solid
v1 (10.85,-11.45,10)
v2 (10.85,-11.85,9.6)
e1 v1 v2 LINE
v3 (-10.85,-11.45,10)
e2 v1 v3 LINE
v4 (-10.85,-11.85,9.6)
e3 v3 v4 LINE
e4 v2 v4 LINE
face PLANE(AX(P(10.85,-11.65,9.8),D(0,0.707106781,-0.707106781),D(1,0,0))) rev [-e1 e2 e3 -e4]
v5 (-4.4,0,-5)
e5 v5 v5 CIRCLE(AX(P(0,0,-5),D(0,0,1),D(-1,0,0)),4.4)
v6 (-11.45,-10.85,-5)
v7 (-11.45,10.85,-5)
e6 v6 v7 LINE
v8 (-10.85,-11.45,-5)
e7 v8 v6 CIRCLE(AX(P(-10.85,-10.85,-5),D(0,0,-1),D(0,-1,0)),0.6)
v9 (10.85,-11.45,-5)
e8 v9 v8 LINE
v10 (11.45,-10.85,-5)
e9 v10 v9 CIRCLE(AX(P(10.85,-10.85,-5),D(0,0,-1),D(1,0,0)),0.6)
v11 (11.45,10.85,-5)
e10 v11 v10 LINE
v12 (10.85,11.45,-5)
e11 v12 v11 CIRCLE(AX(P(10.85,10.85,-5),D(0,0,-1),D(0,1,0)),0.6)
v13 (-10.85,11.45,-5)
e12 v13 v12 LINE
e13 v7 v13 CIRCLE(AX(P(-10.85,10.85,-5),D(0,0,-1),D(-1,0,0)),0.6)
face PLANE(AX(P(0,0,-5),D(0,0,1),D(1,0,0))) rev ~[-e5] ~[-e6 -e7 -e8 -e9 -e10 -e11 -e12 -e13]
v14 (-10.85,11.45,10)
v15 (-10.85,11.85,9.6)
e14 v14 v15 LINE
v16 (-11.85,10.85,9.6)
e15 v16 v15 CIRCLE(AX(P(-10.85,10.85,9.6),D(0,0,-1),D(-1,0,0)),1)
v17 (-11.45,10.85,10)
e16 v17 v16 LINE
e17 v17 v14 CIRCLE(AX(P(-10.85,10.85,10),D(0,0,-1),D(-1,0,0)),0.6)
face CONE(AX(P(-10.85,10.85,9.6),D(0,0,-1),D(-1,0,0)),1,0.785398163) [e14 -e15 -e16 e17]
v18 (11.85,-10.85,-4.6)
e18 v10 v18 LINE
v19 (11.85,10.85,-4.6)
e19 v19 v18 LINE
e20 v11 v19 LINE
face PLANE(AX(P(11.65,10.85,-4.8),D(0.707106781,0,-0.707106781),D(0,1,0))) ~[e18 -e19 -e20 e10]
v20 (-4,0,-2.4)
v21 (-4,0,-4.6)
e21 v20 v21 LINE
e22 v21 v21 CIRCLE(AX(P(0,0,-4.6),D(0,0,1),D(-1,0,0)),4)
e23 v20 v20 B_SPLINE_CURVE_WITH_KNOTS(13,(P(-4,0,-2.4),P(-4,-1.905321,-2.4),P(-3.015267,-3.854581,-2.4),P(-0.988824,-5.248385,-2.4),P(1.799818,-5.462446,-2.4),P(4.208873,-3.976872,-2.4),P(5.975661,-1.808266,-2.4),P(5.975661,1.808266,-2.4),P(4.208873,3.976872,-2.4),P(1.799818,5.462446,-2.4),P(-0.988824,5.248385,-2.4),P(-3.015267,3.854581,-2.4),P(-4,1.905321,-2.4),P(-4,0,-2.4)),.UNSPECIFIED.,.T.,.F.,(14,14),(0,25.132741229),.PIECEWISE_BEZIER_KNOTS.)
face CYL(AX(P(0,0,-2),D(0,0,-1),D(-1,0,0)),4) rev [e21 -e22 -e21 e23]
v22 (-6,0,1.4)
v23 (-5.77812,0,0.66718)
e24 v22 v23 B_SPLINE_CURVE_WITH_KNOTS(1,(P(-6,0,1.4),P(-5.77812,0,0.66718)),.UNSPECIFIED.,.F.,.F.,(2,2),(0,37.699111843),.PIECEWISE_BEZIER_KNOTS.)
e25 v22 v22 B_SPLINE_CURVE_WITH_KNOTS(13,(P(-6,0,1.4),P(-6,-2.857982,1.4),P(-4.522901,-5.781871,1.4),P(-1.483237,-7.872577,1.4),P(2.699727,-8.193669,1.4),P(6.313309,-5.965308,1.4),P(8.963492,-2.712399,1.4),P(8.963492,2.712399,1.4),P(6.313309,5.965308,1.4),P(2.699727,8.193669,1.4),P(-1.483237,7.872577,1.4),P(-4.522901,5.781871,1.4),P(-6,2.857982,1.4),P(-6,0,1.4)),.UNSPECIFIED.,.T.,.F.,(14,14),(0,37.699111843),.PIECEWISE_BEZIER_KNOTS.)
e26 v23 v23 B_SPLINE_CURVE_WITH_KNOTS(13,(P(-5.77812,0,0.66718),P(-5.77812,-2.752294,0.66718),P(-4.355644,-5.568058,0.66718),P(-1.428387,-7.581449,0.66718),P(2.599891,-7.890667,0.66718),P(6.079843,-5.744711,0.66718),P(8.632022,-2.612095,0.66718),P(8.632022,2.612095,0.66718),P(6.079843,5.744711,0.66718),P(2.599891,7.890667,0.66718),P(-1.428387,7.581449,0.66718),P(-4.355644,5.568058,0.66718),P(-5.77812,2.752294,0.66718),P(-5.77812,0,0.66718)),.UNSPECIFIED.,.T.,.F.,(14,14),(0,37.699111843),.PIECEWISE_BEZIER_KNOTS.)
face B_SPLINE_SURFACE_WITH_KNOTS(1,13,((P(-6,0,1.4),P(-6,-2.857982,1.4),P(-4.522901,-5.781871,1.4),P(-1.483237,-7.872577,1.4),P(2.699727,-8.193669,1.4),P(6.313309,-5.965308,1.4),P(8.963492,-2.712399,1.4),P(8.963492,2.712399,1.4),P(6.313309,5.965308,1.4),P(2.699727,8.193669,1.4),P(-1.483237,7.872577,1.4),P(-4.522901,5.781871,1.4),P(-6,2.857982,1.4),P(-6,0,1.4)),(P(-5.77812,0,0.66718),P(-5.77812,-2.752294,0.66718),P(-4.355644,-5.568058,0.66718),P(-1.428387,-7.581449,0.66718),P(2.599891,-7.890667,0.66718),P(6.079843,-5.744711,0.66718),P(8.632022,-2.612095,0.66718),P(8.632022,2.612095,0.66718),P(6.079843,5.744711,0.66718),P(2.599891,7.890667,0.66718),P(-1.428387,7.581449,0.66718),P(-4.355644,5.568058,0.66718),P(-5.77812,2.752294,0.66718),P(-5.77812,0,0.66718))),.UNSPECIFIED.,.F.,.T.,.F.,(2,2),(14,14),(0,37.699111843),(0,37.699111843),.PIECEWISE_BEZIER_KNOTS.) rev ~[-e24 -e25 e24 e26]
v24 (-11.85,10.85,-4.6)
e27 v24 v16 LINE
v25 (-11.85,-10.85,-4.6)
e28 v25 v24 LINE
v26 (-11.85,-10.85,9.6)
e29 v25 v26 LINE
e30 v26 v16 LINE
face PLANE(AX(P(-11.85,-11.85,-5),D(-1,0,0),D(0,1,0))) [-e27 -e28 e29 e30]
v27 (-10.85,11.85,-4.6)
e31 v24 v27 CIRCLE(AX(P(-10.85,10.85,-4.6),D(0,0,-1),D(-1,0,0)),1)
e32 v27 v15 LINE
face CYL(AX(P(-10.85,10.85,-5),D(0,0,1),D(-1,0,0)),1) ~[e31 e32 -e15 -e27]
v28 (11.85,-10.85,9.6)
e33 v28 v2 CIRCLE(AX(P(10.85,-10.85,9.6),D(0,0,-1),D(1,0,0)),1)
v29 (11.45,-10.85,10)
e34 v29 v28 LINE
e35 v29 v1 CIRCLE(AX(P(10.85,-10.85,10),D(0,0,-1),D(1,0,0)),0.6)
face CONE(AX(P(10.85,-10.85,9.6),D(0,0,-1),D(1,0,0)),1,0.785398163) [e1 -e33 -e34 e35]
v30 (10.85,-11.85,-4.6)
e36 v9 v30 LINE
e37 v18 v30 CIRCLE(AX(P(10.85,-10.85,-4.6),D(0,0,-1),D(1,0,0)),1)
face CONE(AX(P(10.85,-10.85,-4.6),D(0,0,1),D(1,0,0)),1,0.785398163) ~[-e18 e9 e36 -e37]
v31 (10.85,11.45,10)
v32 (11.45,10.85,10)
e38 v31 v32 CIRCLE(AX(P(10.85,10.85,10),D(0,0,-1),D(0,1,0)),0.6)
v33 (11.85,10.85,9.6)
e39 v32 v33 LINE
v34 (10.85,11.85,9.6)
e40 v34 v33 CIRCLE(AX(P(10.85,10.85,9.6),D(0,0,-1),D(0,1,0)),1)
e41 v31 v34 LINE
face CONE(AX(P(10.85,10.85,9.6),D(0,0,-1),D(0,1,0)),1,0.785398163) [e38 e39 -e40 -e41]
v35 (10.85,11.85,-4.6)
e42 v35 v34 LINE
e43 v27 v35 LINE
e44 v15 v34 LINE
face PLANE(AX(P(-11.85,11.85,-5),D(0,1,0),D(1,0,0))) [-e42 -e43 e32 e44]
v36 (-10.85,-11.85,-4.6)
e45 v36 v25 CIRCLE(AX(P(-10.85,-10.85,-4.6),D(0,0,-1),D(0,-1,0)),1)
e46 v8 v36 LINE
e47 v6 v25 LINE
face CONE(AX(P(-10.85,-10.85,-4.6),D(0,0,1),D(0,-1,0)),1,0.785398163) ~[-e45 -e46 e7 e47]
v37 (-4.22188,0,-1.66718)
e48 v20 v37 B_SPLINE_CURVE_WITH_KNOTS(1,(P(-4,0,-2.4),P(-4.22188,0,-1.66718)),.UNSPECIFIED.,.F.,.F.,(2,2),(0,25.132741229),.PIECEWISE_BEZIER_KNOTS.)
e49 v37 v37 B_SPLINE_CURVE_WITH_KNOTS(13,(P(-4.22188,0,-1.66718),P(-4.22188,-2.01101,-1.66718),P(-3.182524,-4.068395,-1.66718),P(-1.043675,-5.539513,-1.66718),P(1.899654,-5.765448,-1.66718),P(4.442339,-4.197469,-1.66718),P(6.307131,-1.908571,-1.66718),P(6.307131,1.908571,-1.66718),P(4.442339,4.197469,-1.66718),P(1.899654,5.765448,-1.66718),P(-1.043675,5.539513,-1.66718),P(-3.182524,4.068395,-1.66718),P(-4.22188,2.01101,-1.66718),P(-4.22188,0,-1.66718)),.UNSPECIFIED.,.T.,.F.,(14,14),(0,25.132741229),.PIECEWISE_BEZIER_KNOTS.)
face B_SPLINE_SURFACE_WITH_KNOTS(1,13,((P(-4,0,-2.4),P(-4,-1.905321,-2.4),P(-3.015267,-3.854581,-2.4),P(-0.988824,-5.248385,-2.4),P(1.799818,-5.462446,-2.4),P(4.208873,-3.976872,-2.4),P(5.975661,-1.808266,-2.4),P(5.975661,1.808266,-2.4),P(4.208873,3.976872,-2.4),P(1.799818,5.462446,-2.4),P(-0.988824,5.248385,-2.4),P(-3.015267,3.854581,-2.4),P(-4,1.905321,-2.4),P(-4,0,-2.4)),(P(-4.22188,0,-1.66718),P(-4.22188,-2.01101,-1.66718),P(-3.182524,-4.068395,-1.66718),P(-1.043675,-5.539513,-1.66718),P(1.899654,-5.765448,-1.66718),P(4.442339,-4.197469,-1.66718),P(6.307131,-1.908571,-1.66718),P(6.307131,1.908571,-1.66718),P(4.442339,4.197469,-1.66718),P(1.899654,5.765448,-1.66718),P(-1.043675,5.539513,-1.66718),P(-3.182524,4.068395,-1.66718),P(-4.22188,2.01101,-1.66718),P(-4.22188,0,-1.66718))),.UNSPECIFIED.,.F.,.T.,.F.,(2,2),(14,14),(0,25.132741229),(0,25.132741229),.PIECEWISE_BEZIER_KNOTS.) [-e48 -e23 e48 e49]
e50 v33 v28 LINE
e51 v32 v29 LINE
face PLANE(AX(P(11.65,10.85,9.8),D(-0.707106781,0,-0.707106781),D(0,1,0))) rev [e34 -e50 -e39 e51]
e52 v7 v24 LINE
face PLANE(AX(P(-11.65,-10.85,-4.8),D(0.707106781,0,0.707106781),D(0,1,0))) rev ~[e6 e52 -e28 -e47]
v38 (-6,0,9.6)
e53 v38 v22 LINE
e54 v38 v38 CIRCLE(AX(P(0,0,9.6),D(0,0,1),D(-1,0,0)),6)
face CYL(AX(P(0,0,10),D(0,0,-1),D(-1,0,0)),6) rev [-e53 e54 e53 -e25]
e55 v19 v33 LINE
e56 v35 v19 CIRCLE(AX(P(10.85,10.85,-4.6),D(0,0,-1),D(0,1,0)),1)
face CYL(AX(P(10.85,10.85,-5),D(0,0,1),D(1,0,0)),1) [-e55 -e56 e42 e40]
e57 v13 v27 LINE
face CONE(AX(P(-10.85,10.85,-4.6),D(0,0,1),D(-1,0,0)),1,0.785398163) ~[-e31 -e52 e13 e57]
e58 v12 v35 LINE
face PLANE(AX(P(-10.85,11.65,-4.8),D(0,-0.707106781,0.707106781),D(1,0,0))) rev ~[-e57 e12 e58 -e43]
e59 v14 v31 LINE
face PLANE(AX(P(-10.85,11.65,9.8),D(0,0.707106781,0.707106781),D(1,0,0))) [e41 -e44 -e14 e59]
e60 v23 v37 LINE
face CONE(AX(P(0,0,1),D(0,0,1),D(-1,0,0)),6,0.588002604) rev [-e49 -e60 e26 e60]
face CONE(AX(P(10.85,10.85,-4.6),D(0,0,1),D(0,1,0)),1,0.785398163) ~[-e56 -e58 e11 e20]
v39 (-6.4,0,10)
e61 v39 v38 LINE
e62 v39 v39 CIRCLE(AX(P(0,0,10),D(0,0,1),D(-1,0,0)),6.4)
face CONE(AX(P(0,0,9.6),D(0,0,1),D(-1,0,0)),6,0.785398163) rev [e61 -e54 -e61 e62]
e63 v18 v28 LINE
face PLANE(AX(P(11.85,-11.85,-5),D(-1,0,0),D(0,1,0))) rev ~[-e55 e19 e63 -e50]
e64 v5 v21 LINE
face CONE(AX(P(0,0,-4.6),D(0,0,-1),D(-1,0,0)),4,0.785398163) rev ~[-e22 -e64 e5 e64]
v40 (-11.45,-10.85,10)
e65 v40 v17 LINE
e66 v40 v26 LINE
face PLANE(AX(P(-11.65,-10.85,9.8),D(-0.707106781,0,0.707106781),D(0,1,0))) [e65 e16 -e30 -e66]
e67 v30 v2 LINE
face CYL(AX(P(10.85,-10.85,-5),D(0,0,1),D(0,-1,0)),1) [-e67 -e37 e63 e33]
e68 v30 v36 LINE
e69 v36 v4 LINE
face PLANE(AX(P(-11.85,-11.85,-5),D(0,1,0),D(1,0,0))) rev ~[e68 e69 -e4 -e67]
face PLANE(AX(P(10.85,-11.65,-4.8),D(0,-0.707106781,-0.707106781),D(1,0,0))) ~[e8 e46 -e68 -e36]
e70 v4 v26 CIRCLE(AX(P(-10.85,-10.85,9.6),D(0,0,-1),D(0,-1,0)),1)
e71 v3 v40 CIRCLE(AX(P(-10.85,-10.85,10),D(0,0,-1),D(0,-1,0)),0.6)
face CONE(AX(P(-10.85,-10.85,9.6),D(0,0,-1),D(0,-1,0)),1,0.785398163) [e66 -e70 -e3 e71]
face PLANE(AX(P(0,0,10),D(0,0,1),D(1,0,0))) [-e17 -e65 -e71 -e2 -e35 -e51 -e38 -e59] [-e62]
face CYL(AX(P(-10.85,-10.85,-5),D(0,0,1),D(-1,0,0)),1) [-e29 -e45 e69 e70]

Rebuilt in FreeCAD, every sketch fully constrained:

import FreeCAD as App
import Part
import Sketcher

V = App.Vector


def edges_at(feature, points):
    """Names of the edges that pass closest to the given points."""
    edges = feature.Shape.Edges
    near = lambda p: min(range(len(edges)), key=lambda i: edges[i].distToShape(Part.Vertex(*p))[0])
    return sorted({f"Edge{near(p) + 1}" for p in points})


def add_polygon(sketch, points):
    """Adds a closed chain of lines whose ends are joined by coincident constraints."""
    first, n = sketch.GeometryCount, len(points)
    for a, b in zip(points, points[1:] + points[:1]):
        sketch.addGeometry(Part.LineSegment(App.Vector(*a, 0), App.Vector(*b, 0)), False)
    for i in range(n):
        sketch.addConstraint(Sketcher.Constraint("Coincident", first + i, 2, first + (i + 1) % n, 1))

doc = App.newDocument("Part")
body = doc.addObject("PartDesign::Body", "Body")

# Sketch on XY plane
sketch1 = body.newObject("Sketcher::SketchObject", "Sketch")
sketch1.AttachmentSupport = (doc.getObject("XY_Plane"), [""])
sketch1.MapMode = "FlatFace"
add_polygon(sketch1, [(-12, 12), (-12, -12), (12, -12), (12, 12)])  # lines 0-3
sketch1.addConstraint(Sketcher.Constraint("Vertical", 0))
sketch1.addConstraint(Sketcher.Constraint("Horizontal", 1))
sketch1.addConstraint(Sketcher.Constraint("Vertical", 2))
sketch1.addConstraint(Sketcher.Constraint("Horizontal", 3))
sketch1.addConstraint(Sketcher.Constraint("Symmetric", 0, 2, 2, 2, -1, 1))
sketch1.addConstraint(Sketcher.Constraint("Equal", 3, 0))
sketch1.addConstraint(Sketcher.Constraint("DistanceX", 1, 1, 1, 2, 23.7))
pad1 = body.newObject("PartDesign::Pad", "Pad")
pad1.Profile = sketch1
pad1.Length = 15
doc.recompute()

fillet = body.newObject("PartDesign::Fillet", "Fillet")
fillet.Base = (pad1, edges_at(pad1, [
    (-11.85, 11.85, 7.5),
    (-11.85, -11.85, 7.5),
    (11.85, 11.85, 7.5),
    (11.85, -11.85, 7.5),
]))
fillet.Radius = 1

# Sketch on XZ plane
sketch2 = body.newObject("Sketcher::SketchObject", "Sketch001")
sketch2.AttachmentSupport = (doc.getObject("XZ_Plane"), [""])
sketch2.MapMode = "FlatFace"
add_polygon(sketch2, [(0, 0), (0, 15), (-6, 15), (-6, 6), (-4, 3), (-4, 0)])  # lines 0-5
sketch2.addConstraint(Sketcher.Constraint("Vertical", 0))
sketch2.addConstraint(Sketcher.Constraint("Horizontal", 1))
sketch2.addConstraint(Sketcher.Constraint("Vertical", 2))
sketch2.addConstraint(Sketcher.Constraint("Vertical", 4))
sketch2.addConstraint(Sketcher.Constraint("Horizontal", 5))
sketch2.addConstraint(Sketcher.Constraint("Coincident", 5, 2, -1, 1))
sketch2.addConstraint(Sketcher.Constraint("DistanceX", 1, 2, 1, 1, 6.0))
sketch2.addConstraint(Sketcher.Constraint("DistanceX", 5, 1, 5, 2, 4.0))
sketch2.addConstraint(Sketcher.Constraint("DistanceY", 0, 1, 0, 2, 15.0))
sketch2.addConstraint(Sketcher.Constraint("DistanceY", 2, 2, 2, 1, 9.0))
sketch2.addConstraint(Sketcher.Constraint("DistanceY", 4, 2, 4, 1, 3.0))
groove = body.newObject("PartDesign::Groove", "Groove")
groove.Profile = sketch2
groove.ReferenceAxis = (sketch2, ["V_Axis"])
groove.Angle = 360
doc.recompute()

chamfer = body.newObject("PartDesign::Chamfer", "Chamfer")
chamfer.Base = (groove, edges_at(groove, [
    (0, 11.85, 15),
    (-11.557, 11.557, 15),
    (11.557, 11.557, 15),
    (-11.85, 0, 15),
    (11.85, 0, 15),
    (-11.557, -11.557, 15),
    (11.557, -11.557, 15),
    (0, -11.85, 15),
    (6, 0, 15),
    (0, 11.85, 0),
    (-11.557, 11.557, 0),
    (11.557, 11.557, 0),
    (-11.85, 0, 0),
    (11.85, 0, 0),
    (-11.557, -11.557, 0),
    (11.557, -11.557, 0),
    (0, -11.85, 0),
    (4, 0, 0),
    (4, 0, 3),
    (6, 0, 6),
]))
chamfer.Size = 0.4
body2 = doc.addObject("PartDesign::Body", "Body001")
doc.recompute()

body.Placement = App.Placement(V(0, 0, -5), App.Rotation(V(0, 0, 1), 0))
boolean = body2.newObject("PartDesign::Boolean", "Boolean")
boolean.Type = "Fuse"
boolean.addObjects([body])

doc.recompute()
